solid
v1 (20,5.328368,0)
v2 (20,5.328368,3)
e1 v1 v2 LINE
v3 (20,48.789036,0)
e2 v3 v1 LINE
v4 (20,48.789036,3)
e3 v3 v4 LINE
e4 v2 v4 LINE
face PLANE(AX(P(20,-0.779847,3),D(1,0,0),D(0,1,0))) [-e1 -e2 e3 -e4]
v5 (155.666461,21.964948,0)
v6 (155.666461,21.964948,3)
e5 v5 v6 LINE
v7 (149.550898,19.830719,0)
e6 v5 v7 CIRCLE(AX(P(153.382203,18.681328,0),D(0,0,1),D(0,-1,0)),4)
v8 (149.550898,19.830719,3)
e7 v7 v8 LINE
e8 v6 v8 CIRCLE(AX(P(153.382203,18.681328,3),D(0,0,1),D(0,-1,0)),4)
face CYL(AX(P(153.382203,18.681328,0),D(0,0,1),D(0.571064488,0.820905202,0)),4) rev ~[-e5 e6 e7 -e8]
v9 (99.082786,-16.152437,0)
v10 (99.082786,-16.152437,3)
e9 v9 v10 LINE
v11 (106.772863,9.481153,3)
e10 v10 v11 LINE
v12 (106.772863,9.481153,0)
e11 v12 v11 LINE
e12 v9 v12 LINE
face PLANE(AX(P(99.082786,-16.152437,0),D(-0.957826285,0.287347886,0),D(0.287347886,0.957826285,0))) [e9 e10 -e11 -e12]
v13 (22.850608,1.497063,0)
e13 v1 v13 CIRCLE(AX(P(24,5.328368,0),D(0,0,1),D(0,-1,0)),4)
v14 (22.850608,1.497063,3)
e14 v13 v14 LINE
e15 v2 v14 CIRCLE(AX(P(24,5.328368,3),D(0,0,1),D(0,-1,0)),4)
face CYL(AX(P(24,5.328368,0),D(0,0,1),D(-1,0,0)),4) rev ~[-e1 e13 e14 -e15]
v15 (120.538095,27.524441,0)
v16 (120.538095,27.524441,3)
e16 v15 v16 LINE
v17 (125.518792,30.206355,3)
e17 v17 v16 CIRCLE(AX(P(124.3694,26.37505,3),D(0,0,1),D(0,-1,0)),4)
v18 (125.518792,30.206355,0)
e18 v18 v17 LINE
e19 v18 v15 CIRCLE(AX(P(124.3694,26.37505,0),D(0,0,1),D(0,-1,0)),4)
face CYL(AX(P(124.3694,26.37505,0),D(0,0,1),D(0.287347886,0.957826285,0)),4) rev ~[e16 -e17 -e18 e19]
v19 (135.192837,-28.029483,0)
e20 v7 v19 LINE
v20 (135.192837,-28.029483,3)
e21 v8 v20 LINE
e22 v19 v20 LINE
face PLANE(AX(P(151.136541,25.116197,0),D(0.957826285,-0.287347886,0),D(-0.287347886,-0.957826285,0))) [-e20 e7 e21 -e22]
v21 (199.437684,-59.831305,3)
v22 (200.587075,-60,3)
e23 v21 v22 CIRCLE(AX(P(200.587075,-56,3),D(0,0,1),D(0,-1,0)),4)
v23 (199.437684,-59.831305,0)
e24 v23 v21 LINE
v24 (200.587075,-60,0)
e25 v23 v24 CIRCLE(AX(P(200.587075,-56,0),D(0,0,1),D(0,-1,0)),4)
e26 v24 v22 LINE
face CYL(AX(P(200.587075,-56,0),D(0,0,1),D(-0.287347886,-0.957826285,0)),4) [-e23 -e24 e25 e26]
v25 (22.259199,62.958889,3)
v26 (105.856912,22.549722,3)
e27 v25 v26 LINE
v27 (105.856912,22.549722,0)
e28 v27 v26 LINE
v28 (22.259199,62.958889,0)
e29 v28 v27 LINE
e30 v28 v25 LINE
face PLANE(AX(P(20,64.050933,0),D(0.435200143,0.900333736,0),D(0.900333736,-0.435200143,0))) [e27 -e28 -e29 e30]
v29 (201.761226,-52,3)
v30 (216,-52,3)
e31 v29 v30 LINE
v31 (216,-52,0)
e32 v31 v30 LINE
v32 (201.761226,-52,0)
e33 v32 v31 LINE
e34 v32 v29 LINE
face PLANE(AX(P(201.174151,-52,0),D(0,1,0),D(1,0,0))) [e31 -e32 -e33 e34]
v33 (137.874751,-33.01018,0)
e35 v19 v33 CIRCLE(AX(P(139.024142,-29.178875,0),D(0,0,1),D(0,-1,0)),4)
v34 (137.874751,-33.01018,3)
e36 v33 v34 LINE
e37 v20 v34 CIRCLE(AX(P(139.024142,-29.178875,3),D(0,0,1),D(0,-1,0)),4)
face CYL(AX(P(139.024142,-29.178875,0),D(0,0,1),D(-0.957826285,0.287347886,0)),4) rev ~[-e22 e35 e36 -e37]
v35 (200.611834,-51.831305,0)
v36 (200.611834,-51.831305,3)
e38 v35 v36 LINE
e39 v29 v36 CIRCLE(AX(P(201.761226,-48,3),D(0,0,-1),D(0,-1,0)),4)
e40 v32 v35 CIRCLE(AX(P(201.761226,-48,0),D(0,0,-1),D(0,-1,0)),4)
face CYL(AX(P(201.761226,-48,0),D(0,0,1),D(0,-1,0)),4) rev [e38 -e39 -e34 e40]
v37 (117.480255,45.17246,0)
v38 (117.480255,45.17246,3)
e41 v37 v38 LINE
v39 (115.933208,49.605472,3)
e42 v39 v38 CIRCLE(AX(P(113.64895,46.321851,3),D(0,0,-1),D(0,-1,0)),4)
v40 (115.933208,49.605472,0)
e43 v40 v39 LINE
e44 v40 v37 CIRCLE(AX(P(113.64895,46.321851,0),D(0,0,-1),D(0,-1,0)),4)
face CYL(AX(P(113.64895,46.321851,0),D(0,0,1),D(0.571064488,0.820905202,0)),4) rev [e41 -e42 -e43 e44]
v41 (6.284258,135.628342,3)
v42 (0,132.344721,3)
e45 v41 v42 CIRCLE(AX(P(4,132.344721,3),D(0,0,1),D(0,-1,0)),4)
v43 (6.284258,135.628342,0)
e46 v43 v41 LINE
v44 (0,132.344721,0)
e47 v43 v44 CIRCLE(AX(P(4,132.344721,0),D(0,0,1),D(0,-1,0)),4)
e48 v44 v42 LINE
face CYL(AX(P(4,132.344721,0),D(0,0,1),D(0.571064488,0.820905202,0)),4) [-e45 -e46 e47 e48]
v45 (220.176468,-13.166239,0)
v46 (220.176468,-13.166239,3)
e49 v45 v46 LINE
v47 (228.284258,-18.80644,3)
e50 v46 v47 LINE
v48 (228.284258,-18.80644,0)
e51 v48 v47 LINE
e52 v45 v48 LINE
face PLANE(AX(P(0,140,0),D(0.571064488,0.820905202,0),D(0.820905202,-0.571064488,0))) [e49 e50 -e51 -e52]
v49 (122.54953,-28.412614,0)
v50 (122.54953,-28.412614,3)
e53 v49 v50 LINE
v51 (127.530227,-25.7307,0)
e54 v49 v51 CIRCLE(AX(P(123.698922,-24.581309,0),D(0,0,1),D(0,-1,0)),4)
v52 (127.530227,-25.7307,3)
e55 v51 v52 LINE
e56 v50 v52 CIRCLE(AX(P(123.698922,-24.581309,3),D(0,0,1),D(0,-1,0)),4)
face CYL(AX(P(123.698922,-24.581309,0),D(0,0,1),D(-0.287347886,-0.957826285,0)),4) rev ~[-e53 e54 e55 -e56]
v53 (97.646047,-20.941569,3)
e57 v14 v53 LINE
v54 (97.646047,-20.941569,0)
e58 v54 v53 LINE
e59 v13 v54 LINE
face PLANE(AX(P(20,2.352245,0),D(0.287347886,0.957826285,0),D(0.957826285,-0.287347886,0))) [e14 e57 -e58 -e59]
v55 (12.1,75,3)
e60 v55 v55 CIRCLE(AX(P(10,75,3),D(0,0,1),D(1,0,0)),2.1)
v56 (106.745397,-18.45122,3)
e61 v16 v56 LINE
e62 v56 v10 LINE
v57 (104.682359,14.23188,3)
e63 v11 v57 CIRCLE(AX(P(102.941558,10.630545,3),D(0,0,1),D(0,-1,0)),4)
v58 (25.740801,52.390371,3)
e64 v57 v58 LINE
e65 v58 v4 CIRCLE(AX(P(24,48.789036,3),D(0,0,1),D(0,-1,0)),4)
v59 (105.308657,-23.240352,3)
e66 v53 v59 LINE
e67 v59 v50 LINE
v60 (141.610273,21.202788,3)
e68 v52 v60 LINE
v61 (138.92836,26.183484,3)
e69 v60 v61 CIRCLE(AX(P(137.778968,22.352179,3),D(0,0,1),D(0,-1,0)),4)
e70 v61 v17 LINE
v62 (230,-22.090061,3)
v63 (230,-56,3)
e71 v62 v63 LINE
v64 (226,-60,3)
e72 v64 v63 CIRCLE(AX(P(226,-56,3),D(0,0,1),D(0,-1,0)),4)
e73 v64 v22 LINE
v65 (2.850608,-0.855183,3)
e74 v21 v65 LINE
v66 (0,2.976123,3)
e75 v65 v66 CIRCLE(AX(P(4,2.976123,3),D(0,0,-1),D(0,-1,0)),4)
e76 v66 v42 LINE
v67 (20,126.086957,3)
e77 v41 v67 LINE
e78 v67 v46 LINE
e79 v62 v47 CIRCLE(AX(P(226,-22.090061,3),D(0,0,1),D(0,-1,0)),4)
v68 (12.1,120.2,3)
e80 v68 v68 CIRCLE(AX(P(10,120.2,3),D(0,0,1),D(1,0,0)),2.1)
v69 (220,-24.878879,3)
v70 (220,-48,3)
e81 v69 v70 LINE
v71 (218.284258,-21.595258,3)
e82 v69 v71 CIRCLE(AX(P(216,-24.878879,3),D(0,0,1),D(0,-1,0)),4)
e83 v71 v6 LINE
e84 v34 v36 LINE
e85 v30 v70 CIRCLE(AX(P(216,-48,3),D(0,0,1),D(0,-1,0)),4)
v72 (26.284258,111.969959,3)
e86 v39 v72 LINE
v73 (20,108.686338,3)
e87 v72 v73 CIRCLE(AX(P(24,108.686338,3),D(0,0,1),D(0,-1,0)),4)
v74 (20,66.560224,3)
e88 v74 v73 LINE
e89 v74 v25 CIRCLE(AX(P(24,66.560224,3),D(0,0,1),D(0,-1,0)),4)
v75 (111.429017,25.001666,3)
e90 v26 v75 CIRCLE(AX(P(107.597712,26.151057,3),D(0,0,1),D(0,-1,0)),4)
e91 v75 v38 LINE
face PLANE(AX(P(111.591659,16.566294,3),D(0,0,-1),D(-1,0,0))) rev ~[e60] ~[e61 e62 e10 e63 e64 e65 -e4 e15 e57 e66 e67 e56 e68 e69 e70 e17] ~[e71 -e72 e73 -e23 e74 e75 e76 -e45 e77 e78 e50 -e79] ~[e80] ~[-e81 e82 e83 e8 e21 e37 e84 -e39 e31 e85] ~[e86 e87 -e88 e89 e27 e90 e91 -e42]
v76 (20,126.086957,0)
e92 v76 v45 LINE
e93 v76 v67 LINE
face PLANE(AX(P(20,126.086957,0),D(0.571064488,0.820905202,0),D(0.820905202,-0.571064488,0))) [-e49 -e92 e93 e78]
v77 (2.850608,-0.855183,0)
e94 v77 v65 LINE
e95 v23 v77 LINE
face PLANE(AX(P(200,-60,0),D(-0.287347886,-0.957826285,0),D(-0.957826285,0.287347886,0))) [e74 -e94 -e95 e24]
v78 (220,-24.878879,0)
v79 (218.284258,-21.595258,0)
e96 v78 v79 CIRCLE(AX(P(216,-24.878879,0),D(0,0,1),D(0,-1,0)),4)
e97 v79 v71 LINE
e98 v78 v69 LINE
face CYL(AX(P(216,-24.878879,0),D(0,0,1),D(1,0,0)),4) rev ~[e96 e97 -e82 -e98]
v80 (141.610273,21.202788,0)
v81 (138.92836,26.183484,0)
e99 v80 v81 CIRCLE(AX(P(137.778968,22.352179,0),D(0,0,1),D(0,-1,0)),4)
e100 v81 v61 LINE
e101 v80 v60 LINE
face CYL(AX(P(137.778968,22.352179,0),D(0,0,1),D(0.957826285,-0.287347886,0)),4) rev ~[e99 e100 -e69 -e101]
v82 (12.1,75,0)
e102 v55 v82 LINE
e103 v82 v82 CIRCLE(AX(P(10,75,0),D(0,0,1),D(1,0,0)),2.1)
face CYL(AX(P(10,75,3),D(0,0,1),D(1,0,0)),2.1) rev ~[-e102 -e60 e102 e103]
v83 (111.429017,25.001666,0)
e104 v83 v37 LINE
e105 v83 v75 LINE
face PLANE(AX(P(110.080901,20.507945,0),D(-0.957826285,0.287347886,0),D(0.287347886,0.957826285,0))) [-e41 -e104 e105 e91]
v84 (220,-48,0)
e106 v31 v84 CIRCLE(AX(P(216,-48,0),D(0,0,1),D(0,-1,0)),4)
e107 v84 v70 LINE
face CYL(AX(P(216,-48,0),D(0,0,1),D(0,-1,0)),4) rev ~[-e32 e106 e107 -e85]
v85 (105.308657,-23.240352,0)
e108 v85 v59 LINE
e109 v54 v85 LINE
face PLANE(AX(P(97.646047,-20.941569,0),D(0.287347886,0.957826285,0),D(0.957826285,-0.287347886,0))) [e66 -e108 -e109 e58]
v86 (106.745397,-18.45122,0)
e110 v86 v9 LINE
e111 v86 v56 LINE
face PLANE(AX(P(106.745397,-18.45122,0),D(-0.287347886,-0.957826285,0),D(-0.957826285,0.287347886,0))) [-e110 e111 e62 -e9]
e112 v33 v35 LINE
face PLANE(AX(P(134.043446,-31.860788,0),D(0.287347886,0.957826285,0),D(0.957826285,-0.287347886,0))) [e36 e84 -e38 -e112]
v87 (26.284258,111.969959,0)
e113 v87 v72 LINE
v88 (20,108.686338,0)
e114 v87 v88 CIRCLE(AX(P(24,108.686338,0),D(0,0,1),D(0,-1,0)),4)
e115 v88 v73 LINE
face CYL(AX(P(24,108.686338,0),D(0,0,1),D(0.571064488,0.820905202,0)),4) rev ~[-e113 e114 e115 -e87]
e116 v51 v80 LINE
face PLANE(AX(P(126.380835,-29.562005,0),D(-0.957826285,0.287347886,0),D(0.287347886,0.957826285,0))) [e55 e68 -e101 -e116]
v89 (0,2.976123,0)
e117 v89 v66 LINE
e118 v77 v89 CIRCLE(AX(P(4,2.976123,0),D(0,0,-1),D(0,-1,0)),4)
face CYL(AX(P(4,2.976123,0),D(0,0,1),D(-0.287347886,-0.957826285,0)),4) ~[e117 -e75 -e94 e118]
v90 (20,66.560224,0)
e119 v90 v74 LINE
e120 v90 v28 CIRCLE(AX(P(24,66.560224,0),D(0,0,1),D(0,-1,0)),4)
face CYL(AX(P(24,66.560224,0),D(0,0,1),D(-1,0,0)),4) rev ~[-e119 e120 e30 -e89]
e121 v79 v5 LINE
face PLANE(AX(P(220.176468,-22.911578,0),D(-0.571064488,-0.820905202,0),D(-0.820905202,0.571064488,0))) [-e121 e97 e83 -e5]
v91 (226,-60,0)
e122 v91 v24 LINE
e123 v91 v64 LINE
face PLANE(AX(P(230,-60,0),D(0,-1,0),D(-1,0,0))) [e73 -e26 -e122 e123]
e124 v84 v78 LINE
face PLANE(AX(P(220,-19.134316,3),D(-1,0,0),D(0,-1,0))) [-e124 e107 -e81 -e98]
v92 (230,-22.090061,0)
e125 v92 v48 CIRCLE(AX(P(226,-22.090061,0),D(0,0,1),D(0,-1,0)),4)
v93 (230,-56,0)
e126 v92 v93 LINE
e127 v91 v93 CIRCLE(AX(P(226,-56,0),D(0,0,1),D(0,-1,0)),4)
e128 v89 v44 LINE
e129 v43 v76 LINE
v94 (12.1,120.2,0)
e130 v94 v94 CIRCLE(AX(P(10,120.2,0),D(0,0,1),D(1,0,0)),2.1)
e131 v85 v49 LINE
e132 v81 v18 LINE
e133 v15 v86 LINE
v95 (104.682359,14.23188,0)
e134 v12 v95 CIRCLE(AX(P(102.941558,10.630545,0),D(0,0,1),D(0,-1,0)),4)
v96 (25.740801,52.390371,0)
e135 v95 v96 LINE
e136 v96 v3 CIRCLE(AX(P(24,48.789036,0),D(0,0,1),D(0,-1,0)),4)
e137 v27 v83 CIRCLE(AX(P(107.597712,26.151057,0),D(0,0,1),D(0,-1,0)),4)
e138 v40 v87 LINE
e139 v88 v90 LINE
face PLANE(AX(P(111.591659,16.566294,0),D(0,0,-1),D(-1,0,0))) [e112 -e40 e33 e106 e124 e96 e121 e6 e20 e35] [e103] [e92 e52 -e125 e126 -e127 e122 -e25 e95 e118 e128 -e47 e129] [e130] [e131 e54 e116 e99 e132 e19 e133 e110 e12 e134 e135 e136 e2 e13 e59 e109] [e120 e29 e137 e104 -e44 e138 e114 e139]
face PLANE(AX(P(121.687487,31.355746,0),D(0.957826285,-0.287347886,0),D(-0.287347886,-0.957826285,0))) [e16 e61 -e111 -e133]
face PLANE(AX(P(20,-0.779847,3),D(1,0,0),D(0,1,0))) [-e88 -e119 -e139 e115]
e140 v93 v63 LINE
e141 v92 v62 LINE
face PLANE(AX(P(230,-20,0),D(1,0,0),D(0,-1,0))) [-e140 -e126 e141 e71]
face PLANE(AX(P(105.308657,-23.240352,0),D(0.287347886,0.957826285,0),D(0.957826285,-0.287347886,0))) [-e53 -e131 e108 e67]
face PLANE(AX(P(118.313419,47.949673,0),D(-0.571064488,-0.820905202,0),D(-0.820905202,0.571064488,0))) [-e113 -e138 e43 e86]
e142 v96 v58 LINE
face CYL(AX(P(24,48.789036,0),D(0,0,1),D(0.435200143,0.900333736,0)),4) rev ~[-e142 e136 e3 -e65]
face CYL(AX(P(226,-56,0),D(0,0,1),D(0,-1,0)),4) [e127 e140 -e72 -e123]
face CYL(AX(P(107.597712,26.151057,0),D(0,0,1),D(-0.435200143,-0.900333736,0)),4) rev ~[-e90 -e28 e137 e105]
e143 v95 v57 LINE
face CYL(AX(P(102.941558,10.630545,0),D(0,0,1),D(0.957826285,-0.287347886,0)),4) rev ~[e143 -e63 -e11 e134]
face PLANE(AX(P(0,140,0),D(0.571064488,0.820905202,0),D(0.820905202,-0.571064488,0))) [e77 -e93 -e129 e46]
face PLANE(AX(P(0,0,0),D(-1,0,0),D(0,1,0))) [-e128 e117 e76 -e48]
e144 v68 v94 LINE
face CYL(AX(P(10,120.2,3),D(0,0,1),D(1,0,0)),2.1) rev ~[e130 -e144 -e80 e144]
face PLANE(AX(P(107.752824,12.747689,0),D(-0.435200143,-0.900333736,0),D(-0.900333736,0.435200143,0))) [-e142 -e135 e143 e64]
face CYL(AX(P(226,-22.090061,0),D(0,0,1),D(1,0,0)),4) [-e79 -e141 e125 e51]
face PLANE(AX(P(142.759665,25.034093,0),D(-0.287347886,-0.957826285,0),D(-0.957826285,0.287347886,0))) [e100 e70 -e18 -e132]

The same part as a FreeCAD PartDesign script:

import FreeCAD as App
import Part
import Sketcher
from FreeCAD import Vector
Q = App.Units.Quantity


def edges_at(feature, points):
    """Names of the edges that pass closest to the given points."""
    edges = feature.Shape.Edges
    near = lambda p: min(range(len(edges)), key=lambda i: edges[i].distToShape(Part.Vertex(*p))[0])
    return sorted({f"Edge{near(p) + 1}" for p in points})


def add_polygon(sketch, points):
    """Adds a closed chain of lines whose ends are joined by coincident constraints."""
    first, n = sketch.GeometryCount, len(points)
    for a, b in zip(points, points[1:] + points[:1]):
        sketch.addGeometry(Part.LineSegment(App.Vector(*a, 0), App.Vector(*b, 0)), False)
    for i in range(n):
        sketch.addConstraint(Sketcher.Constraint("Coincident", first + i, 2, first + (i + 1) % n, 1))

doc = App.newDocument("Part")
body = doc.addObject("PartDesign::Body", "Body")

# Sketch on XY plane
sketch1 = body.newObject("Sketcher::SketchObject", "Sketch")
sketch1.AttachmentSupport = (doc.getObject("XY_Plane"), [""])
sketch1.MapMode = "FlatFace"
add_polygon(sketch1, [(0, 140), (0, 0), (200, -60), (230, -60), (230, -20)])  # lines 0-4
sketch1.addConstraint(Sketcher.Constraint("Vertical", 0))
sketch1.addConstraint(Sketcher.Constraint("Horizontal", 2))
sketch1.addConstraint(Sketcher.Constraint("Vertical", 3))
sketch1.addConstraint(Sketcher.Constraint("Coincident", 0, 2, -1, 1))
sketch1.addConstraint(Sketcher.Constraint("DistanceX", 2, 1, 2, 2, Q("30 mm")))
sketch1.addConstraint(Sketcher.Constraint("DistanceY", 0, 2, 0, 1, Q("140 mm")))
sketch1.addConstraint(Sketcher.Constraint("DistanceY", 3, 1, 3, 2, Q("40 mm")))
sketch1.addConstraint(Sketcher.Constraint("DistanceX", -1, 1, 1, 2, Q("200 mm")))
sketch1.addConstraint(Sketcher.Constraint("DistanceY", 1, 2, -1, 1, Q("60 mm")))
pad1 = body.newObject("PartDesign::Pad", "Pad")
pad1.Profile = sketch1
pad1.Length = 3

# Sketch on XY plane
sketch2 = body.newObject("Sketcher::SketchObject", "Sketch001")
sketch2.AttachmentSupport = (doc.getObject("XY_Plane"), [""])
sketch2.MapMode = "FlatFace"
sketch2.AttachmentOffset = App.Placement(Vector(0, 0, 3), App.Rotation())
sketch2.addGeometry(Part.Circle(Vector(10, 75, 0), Vector(0, 0, 1), 2.1), False)
sketch2.addGeometry(Part.Circle(Vector(10, 120.2, 0), Vector(0, 0, 1), 2.1), False)
sketch2.addConstraint(Sketcher.Constraint("Equal", 0, 1))
sketch2.addConstraint(Sketcher.Constraint("Vertical", 0, 3, 1, 3))
sketch2.addConstraint(Sketcher.Constraint("Diameter", 0, Q("4.2 mm")))
sketch2.addConstraint(Sketcher.Constraint("DistanceX", -1, 1, 0, 3, Q("10 mm")))
sketch2.addConstraint(Sketcher.Constraint("DistanceY", -1, 1, 0, 3, Q("75 mm")))
sketch2.addConstraint(Sketcher.Constraint("DistanceY", -1, 1, 1, 3, Q("120.2 mm")))
pocket1 = body.newObject("PartDesign::Pocket", "Pocket")
pocket1.Profile = sketch2
pocket1.Length = 39

# Sketch on XY plane
sketch3 = body.newObject("Sketcher::SketchObject", "Sketch002")
sketch3.AttachmentSupport = (doc.getObject("XY_Plane"), [""])
sketch3.MapMode = "FlatFace"
sketch3.AttachmentOffset = App.Placement(Vector(0, 0, 3), App.Rotation())
add_polygon(sketch3, [(220, -55), (220, -19.134316), (20, 119.996119), (20, -0.779847), (200.733844, -55)])  # lines 0-4
sketch3.addConstraint(Sketcher.Constraint("Vertical", 0))
sketch3.addConstraint(Sketcher.Constraint("Vertical", 2))
sketch3.addConstraint(Sketcher.Constraint("Horizontal", 4))
sketch3.addConstraint(Sketcher.Constraint("DistanceX", -1, 1, 0, 2, Q("220 mm")))
sketch3.addConstraint(Sketcher.Constraint("DistanceX", -1, 1, 1, 2, Q("20 mm")))
sketch3.addConstraint(Sketcher.Constraint("DistanceY", 3, 2, -1, 1, Q("55 mm")))
sketch3.addConstraint(Sketcher.Constraint("Distance", 1, Q("243.633491 mm")))
sketch3.addConstraint(Sketcher.Constraint("DistanceX", 4, 1, 4, 2, Q("19.266156 mm")))
sketch3.addConstraint(Sketcher.Constraint("DistanceY", 0, 1, 0, 2, Q("35.865684 mm")))
sketch3.addConstraint(Sketcher.Constraint("DistanceY", 2, 2, 2, 1, Q("120.775966 mm")))
pocket2 = body.newObject("PartDesign::Pocket", "Pocket001")
pocket2.Profile = sketch3
pocket2.Length = 10

# Sketch on XY plane
sketch4 = body.newObject("Sketcher::SketchObject", "Sketch003")
sketch4.AttachmentSupport = (doc.getObject("XY_Plane"), [""])
sketch4.MapMode = "FlatFace"
add_polygon(sketch4, [(126.380835, -29.562005), (105.308657, -23.240352), (97.646047, -20.941569), (20, 2.352245), (20, -0.779847), (200.733844, -55), (220, -55), (220, -52), (201.174151, -52), (134.043446, -31.860788), (151.136541, 25.116197), (220.176468, -22.911578), (220.176468, -13.166239), (20, 126.086957), (20, 116.341617), (118.313419, 47.949673), (110.080901, 20.507945), (20, 64.050933), (20, 55.165339), (107.752824, 12.747689), (99.082786, -16.152437), (106.745397, -18.45122), (121.687487, 31.355746), (142.759665, 25.034093)])  # lines 0-23
sketch4.addConstraint(Sketcher.Constraint("Vertical", 3))
sketch4.addConstraint(Sketcher.Constraint("Horizontal", 5))
sketch4.addConstraint(Sketcher.Constraint("Vertical", 6))
sketch4.addConstraint(Sketcher.Constraint("Horizontal", 7))
sketch4.addConstraint(Sketcher.Constraint("Vertical", 11))
sketch4.addConstraint(Sketcher.Constraint("Vertical", 13))
sketch4.addConstraint(Sketcher.Constraint("Vertical", 17))
sketch4.addConstraint(Sketcher.Constraint("Parallel", 0, 1))
sketch4.addConstraint(Sketcher.Constraint("Parallel", 1, 2))
sketch4.addConstraint(Sketcher.Constraint("Parallel", 2, 4))
sketch4.addConstraint(Sketcher.Constraint("Parallel", 4, 8))
sketch4.addConstraint(Sketcher.Constraint("Perpendicular", 8, 9))
sketch4.addConstraint(Sketcher.Constraint("Parallel", 10, 12))
sketch4.addConstraint(Sketcher.Constraint("Parallel", 12, 14))
sketch4.addConstraint(Sketcher.Constraint("Parallel", 9, 15))
sketch4.addConstraint(Sketcher.Constraint("Parallel", 16, 18))
sketch4.addConstraint(Sketcher.Constraint("Parallel", 15, 19))
sketch4.addConstraint(Sketcher.Constraint("Perpendicular", 19, 20))
sketch4.addConstraint(Sketcher.Constraint("Perpendicular", 20, 21))
sketch4.addConstraint(Sketcher.Constraint("Perpendicular", 21, 22))
sketch4.addConstraint(Sketcher.Constraint("Perpendicular", 22, 23))
sketch4.addConstraint(Sketcher.Constraint("Vertical", 3, 2, 12, 2))
sketch4.addConstraint(Sketcher.Constraint("Vertical", 13, 2, 16, 2))
sketch4.addConstraint(Sketcher.Constraint("Equal", 11, 13))
sketch4.addConstraint(Sketcher.Constraint("Equal", 1, 20))
sketch4.addConstraint(Sketcher.Constraint("Equal", 0, 22))
sketch4.addConstraint(Sketcher.Constraint("DistanceY", 6, 1, 6, 2, Q("3 mm")))
sketch4.addConstraint(Sketcher.Constraint("Distance", 0, Q("22 mm")))
sketch4.addConstraint(Sketcher.Constraint("Distance", 1, Q("8 mm")))
sketch4.addConstraint(Sketcher.Constraint("Distance", 21, Q("52 mm")))
sketch4.addConstraint(Sketcher.Constraint("Distance", 23, Q("57 mm")))
sketch4.addConstraint(Sketcher.Constraint("DistanceX", -1, 1, 2, 2, Q("20 mm")))
sketch4.addConstraint(Sketcher.Constraint("DistanceY", 4, 2, -1, 1, Q("55 mm")))
sketch4.addConstraint(Sketcher.Constraint("DistanceX", -1, 1, 5, 2, Q("220 mm")))
sketch4.addConstraint(Sketcher.Constraint("DistanceX", 7, 2, 7, 1, Q("18.825849 mm")))
sketch4.addConstraint(Sketcher.Constraint("DistanceY", 3, 2, 3, 1, Q("3.132092 mm")))
sketch4.addConstraint(Sketcher.Constraint("DistanceY", 11, 1, 11, 2, Q("9.74534 mm")))
sketch4.addConstraint(Sketcher.Constraint("DistanceX", -1, 1, 15, 2, Q("110.080901 mm")))
sketch4.addConstraint(Sketcher.Constraint("DistanceX", 1, 2, 8, 2, Q("36.397399 mm")))
sketch4.addConstraint(Sketcher.Constraint("DistanceX", 8, 2, 4, 2, Q("66.690399 mm")))
sketch4.addConstraint(Sketcher.Constraint("DistanceY", 15, 2, 21, 2, Q("10.847801 mm")))
sketch4.addConstraint(Sketcher.Constraint("Distance", 9, Q("59.485719 mm")))
sketch4.addConstraint(Sketcher.Constraint("Distance", 12, Q("243.848459 mm")))
sketch4.addConstraint(Sketcher.Constraint("Distance", 16, Q("100.052789 mm")))
sketch4.addConstraint(Sketcher.Constraint("DistanceX", 5, 1, 5, 2, Q("19.266156 mm")))
sketch4.addConstraint(Sketcher.Constraint("DistanceY", 17, 2, 17, 1, Q("8.885594 mm")))
sketch4.addConstraint(Sketcher.Constraint("DistanceY", 0, 2, -1, 1, Q("23.240352 mm")))
sketch4.addConstraint(Sketcher.Constraint("DistanceX", -1, 1, 10, 2, Q("220.176468 mm")))
pad2 = body.newObject("PartDesign::Pad", "Pad001")
pad2.Profile = sketch4
pad2.Length = 3
doc.recompute()

fillet = body.newObject("PartDesign::Fillet", "Fillet")
fillet.Base = (pad2, edges_at(pad2, [
    (0, 0, 1.5),
    (0, 140, 1.5),
    (230, -20, 1.5),
    (230, -60, 1.5),
    (200, -60, 1.5),
]))
fillet.Radius = 4
doc.recompute()

fillet2 = body.newObject("PartDesign::Fillet", "Fillet001")
fillet2.Base = (fillet, edges_at(fillet, [
    (220, -22.789, 1.5),
    (151.137, 25.116, 1.5),
    (20, 2.352, 1.5),
    (220, -52, 1.5),
    (201.174, -52, 1.5),
    (134.043, -31.861, 1.5),
    (20, 116.342, 1.5),
    (118.313, 47.95, 1.5),
    (110.081, 20.508, 1.5),
    (20, 64.051, 1.5),
    (20, 55.165, 1.5),
    (107.753, 12.748, 1.5),
    (121.687, 31.356, 1.5),
    (142.76, 25.034, 1.5),
    (126.381, -29.562, 1.5),
]))
fillet2.Radius = 4

doc.recompute()
